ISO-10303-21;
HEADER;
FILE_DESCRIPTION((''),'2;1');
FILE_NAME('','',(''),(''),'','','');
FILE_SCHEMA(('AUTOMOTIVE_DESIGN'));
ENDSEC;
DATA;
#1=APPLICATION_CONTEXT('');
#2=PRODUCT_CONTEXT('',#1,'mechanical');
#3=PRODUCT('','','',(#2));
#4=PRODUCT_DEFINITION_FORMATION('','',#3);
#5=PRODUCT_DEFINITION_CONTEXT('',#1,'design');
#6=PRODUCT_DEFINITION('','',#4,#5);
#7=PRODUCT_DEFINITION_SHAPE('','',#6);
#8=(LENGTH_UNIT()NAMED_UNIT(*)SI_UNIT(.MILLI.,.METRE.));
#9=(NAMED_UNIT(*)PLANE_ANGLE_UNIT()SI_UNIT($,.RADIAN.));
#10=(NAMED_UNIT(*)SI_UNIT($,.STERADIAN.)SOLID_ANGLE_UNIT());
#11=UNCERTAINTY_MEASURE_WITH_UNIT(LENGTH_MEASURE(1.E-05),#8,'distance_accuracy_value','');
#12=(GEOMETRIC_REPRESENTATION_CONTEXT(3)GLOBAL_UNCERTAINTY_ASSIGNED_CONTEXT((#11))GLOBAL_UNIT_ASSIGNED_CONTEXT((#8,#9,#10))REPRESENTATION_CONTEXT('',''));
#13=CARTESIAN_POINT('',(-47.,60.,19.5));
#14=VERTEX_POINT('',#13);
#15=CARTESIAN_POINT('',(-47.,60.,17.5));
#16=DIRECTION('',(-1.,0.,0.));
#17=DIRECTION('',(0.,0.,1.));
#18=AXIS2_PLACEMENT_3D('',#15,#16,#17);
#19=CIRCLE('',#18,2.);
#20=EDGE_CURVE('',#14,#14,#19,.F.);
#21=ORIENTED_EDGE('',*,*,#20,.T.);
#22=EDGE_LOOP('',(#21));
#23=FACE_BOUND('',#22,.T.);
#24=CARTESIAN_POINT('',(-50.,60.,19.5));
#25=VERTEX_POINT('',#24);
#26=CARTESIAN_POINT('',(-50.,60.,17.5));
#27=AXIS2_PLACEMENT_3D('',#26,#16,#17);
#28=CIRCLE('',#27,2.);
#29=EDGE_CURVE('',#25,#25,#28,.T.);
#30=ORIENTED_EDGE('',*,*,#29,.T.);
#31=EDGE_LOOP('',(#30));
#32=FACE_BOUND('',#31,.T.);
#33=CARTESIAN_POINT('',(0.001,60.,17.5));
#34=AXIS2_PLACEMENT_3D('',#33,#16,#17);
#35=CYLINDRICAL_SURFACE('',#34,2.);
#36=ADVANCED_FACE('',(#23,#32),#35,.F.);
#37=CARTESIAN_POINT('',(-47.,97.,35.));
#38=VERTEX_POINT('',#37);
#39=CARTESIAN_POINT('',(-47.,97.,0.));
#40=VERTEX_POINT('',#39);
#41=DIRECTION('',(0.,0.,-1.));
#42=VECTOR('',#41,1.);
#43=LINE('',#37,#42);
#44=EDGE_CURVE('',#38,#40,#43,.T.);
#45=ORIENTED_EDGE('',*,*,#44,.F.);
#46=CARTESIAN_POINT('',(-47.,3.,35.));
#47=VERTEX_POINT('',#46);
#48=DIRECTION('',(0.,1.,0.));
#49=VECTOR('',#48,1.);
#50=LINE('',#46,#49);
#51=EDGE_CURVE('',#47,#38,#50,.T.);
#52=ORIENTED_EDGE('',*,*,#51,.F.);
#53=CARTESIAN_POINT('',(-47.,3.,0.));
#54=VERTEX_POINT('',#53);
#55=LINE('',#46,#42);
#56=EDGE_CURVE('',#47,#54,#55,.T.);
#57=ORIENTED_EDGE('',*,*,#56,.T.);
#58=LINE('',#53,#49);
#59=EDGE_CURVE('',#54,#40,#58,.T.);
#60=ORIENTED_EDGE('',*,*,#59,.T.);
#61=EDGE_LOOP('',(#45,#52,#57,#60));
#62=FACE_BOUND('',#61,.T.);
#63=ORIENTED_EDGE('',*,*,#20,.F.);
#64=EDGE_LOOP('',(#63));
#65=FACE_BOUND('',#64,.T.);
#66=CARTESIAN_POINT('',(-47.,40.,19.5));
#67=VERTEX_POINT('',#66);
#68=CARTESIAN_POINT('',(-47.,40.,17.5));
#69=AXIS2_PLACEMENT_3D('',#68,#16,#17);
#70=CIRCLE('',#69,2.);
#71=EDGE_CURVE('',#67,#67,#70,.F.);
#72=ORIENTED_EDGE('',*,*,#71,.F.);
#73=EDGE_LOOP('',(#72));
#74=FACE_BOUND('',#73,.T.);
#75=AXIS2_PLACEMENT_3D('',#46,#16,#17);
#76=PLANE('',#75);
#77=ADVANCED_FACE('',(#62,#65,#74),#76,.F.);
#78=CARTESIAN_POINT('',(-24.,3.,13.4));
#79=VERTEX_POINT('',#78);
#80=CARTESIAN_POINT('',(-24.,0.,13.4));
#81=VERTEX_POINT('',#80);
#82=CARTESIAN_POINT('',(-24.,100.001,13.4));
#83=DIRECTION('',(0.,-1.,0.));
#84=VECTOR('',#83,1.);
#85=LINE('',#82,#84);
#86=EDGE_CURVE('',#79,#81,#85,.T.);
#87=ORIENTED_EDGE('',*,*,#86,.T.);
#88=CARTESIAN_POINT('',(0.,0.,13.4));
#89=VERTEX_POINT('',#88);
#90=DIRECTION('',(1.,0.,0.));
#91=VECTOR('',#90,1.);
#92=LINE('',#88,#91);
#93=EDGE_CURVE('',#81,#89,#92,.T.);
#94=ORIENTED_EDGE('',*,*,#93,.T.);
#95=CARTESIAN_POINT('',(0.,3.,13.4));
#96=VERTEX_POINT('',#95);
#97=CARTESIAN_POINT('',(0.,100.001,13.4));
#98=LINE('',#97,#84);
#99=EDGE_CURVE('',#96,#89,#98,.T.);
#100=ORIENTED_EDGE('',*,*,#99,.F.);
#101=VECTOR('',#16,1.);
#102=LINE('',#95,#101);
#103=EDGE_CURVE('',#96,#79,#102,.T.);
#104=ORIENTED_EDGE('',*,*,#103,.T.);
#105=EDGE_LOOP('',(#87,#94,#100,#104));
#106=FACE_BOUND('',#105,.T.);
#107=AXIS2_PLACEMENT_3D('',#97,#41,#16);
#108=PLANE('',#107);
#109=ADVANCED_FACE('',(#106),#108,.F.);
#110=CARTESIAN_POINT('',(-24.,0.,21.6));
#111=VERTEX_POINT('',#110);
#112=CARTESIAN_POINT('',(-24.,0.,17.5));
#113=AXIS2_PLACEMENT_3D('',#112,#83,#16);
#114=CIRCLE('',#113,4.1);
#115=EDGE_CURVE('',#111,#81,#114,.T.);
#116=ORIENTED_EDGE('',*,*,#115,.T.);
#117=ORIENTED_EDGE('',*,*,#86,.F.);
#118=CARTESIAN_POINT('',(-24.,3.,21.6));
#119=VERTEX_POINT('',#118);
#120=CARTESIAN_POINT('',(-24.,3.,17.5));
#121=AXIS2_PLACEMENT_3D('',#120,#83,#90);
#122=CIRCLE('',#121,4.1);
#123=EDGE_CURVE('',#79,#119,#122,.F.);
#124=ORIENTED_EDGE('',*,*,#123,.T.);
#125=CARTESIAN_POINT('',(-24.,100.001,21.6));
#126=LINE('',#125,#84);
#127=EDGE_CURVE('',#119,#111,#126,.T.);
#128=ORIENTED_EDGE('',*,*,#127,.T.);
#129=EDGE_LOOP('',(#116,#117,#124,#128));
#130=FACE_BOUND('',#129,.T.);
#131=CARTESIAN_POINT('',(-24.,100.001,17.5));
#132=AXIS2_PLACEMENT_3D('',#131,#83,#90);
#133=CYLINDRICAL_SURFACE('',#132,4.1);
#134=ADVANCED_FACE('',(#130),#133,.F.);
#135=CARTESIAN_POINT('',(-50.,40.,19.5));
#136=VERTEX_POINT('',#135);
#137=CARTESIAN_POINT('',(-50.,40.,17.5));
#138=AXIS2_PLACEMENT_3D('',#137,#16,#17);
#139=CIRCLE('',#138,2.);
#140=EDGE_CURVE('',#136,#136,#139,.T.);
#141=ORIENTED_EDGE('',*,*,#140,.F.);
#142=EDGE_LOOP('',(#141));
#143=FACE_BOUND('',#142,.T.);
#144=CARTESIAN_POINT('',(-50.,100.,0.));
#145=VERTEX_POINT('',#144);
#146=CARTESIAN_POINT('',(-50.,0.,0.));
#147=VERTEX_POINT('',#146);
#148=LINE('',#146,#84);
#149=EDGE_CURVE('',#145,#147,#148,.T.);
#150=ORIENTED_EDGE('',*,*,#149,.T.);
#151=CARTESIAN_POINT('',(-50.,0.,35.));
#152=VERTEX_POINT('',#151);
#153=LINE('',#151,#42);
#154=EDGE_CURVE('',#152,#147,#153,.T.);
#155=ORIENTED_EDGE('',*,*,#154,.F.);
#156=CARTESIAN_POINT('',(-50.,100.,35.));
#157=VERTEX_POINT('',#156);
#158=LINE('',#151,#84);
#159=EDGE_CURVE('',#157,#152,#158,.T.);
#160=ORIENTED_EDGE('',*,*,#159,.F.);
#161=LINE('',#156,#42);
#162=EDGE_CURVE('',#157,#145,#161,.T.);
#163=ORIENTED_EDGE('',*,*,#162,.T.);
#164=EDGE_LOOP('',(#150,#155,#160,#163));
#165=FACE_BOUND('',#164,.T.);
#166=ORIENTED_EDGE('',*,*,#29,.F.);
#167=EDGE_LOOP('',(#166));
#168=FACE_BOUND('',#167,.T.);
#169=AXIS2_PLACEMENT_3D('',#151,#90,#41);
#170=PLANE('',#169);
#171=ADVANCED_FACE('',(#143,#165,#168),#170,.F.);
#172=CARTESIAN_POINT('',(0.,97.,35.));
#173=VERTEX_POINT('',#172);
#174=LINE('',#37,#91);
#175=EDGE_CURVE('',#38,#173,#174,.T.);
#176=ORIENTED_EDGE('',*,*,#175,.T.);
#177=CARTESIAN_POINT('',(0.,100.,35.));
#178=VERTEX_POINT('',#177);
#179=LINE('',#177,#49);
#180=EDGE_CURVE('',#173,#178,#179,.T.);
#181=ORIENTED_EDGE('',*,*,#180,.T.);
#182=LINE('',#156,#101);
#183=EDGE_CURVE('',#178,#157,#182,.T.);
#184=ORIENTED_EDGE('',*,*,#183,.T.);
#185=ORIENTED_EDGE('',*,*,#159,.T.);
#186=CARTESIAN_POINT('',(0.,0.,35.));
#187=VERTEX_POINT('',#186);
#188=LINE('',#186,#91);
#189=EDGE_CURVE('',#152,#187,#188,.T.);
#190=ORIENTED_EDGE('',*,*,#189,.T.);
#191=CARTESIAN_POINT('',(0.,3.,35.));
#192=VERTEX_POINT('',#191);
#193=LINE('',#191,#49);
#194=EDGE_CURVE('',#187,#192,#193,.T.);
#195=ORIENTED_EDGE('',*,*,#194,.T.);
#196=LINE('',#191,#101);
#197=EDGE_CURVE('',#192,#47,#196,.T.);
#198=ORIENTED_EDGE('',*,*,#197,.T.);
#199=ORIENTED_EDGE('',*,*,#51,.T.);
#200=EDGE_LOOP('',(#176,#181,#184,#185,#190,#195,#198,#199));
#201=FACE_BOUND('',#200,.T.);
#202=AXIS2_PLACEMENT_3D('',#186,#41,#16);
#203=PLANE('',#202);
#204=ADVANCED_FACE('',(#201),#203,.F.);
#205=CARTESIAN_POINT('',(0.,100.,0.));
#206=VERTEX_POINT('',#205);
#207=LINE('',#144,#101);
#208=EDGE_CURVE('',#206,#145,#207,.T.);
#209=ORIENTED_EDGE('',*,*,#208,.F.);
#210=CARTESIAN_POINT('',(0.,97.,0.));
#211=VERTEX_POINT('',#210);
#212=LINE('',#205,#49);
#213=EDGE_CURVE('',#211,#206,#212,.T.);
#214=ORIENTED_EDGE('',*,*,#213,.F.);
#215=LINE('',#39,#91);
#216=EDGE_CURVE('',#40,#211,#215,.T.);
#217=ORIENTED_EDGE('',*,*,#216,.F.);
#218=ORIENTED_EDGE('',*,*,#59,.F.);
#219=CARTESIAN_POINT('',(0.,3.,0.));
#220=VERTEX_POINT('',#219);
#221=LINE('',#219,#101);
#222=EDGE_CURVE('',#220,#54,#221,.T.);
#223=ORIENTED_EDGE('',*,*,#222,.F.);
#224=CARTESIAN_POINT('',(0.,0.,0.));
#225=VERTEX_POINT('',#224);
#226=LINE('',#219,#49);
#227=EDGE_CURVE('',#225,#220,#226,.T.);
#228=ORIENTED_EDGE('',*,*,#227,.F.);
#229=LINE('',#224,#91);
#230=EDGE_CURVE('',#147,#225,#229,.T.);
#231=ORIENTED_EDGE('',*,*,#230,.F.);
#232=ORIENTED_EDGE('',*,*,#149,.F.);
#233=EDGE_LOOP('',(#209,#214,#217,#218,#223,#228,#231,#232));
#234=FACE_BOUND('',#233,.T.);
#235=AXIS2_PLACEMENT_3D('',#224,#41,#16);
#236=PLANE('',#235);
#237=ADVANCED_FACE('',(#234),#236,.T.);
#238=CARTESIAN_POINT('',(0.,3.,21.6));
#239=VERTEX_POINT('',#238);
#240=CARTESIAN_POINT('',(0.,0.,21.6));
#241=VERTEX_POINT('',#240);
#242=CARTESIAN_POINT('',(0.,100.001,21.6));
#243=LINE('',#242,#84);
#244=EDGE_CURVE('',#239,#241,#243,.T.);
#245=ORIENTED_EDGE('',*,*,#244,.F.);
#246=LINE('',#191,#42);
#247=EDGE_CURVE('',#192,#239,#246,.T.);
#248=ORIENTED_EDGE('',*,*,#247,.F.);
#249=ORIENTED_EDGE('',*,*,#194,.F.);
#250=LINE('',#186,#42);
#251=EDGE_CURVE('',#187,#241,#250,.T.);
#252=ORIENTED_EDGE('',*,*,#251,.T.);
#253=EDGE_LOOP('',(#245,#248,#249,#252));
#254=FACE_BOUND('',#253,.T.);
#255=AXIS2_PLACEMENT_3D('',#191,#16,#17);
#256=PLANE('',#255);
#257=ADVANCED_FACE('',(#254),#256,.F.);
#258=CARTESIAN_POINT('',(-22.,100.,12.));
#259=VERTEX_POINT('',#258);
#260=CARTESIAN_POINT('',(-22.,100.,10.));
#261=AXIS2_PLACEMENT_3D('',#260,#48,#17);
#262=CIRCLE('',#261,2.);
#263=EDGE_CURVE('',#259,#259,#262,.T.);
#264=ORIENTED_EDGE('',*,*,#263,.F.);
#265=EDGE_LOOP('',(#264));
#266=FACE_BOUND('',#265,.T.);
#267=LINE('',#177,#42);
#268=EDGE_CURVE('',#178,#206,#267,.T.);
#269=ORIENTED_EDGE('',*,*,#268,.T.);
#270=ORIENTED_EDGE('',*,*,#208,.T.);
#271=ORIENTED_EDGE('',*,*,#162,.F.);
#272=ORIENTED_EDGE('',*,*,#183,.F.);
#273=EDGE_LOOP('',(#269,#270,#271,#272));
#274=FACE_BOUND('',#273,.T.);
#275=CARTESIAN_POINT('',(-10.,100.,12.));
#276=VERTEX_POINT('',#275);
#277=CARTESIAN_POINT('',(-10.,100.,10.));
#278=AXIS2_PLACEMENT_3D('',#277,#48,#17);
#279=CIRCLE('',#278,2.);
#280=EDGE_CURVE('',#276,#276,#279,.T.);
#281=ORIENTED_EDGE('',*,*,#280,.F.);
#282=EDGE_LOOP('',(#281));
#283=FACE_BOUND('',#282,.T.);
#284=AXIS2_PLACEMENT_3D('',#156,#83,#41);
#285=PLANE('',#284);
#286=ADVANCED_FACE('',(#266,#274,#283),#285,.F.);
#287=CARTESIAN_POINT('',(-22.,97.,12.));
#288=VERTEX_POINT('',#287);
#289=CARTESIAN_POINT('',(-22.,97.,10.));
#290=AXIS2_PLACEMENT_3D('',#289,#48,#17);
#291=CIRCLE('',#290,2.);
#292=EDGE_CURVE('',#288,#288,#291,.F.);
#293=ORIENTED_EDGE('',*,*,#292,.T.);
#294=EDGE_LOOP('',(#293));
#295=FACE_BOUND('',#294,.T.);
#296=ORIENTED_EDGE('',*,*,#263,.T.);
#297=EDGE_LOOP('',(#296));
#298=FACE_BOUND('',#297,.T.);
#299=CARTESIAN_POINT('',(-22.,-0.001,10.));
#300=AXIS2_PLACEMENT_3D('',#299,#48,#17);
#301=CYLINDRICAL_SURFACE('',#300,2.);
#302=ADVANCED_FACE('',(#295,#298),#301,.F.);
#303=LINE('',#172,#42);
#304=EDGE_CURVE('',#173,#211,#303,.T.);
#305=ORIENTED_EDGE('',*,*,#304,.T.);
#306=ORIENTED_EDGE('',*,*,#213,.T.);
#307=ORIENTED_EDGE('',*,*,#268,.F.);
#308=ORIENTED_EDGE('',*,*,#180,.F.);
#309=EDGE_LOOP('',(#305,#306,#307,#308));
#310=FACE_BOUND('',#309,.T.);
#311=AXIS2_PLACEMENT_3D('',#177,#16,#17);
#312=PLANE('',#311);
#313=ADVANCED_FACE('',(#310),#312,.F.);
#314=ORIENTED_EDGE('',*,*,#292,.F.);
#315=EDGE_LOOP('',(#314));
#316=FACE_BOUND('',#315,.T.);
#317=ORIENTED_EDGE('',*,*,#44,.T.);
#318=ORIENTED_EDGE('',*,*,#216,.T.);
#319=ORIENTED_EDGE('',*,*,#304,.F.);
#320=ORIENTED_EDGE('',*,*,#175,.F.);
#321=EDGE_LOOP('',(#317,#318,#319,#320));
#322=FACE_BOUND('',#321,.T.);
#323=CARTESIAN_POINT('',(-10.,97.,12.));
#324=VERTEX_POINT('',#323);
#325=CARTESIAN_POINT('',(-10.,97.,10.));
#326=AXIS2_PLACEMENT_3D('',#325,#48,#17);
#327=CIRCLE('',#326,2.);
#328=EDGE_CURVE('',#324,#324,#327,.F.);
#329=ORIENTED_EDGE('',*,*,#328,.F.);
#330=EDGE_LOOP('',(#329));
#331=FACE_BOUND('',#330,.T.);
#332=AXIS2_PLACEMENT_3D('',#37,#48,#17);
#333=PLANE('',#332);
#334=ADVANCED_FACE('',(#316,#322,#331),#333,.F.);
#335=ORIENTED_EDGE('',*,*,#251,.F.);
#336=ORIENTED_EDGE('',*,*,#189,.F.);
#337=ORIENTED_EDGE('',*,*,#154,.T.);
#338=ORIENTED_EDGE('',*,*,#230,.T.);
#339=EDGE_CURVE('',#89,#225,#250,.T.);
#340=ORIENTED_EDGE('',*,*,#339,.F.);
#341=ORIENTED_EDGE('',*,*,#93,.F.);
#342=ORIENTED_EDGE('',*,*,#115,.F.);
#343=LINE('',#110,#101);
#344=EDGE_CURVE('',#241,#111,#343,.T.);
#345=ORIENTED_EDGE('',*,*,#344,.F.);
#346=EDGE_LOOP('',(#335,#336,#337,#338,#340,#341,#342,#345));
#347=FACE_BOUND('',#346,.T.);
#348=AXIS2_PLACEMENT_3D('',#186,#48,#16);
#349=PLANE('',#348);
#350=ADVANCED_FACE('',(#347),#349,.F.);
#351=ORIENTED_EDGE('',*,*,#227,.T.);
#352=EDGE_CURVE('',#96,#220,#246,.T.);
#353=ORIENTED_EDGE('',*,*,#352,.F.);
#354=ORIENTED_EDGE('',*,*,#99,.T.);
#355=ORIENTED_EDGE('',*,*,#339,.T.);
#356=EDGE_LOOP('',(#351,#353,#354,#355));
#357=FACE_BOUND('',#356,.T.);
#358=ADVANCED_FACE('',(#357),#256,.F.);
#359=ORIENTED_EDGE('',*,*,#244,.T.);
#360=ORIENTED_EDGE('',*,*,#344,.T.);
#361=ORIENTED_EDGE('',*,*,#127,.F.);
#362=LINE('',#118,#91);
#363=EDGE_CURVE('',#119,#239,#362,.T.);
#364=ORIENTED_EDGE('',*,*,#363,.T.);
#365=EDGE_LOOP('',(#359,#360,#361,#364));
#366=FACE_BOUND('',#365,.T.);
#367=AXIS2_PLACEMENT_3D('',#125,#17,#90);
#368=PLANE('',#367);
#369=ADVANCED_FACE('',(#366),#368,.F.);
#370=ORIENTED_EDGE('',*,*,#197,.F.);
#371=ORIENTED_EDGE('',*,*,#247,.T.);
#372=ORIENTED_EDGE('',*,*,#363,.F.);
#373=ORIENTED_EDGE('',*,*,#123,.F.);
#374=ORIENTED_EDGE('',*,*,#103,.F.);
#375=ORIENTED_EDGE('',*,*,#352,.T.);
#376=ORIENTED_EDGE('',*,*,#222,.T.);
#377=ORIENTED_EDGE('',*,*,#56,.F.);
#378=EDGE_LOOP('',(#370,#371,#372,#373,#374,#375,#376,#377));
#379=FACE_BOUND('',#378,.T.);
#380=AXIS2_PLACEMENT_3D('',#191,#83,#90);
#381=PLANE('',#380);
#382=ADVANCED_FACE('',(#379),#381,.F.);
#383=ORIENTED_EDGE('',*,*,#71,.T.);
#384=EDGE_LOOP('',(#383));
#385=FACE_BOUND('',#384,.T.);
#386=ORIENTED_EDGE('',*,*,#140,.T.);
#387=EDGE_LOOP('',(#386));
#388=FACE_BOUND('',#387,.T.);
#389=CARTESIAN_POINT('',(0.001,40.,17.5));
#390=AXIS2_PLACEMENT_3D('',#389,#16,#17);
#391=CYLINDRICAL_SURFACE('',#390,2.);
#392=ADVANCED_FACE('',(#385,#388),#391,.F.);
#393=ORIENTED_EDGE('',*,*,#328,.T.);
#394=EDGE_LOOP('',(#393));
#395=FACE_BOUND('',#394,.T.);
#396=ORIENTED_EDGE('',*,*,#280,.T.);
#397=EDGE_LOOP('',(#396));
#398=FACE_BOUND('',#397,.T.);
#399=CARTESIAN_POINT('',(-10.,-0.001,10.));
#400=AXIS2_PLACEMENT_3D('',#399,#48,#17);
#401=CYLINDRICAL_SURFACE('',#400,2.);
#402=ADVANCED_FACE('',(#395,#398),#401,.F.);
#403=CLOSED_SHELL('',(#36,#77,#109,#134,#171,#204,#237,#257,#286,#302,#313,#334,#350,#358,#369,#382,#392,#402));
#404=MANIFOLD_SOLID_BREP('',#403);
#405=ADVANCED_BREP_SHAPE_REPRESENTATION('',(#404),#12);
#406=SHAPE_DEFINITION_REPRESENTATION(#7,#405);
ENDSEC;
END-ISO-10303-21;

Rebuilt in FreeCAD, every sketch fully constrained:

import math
import FreeCAD as App
import Part
import Sketcher


def add_polygon(sketch, points):
    """Adds a closed chain of lines whose ends are joined by coincident constraints."""
    first, n = sketch.GeometryCount, len(points)
    for a, b in zip(points, points[1:] + points[:1]):
        sketch.addGeometry(Part.LineSegment(App.Vector(*a, 0), App.Vector(*b, 0)), False)
    for i in range(n):
        sketch.addConstraint(Sketcher.Constraint("Coincident", first + i, 2, first + (i + 1) % n, 1))

doc = App.newDocument("Part")
body = doc.addObject("PartDesign::Body", "Body")

sketch1 = body.newObject("Sketcher::SketchObject", "Sketch")
sketch1.AttachmentSupport = (doc.getObject("XY_Plane"), [""])
sketch1.MapMode = "FlatFace"
add_polygon(sketch1, [(-50, 0), (0, 0), (0, 3), (-47, 3), (-47, 97), (0, 97), (0, 100), (-50, 100)])
sketch1.addConstraint([
    Sketcher.Constraint("Horizontal", 0),
    Sketcher.Constraint("Vertical", 1),
    Sketcher.Constraint("Horizontal", 2),
    Sketcher.Constraint("Vertical", 3),
    Sketcher.Constraint("Horizontal", 4),
    Sketcher.Constraint("Vertical", 5),
    Sketcher.Constraint("Horizontal", 6),
    Sketcher.Constraint("Vertical", 7),
    Sketcher.Constraint("Coincident", 0, 2, -1, 1),
    Sketcher.Constraint("PointOnObject", 4, 2, -2),
    Sketcher.Constraint("Equal", 1, 5),
    Sketcher.Constraint("DistanceX", 0, 1, 0, 2, 50.0),
    Sketcher.Constraint("DistanceX", 2, 2, 2, 1, 47.0),
    Sketcher.Constraint("DistanceY", 1, 1, 1, 2, 3.0),
    Sketcher.Constraint("DistanceY", 3, 1, 3, 2, 94.0),
])
pad1 = body.newObject("PartDesign::Pad", "Pad")
pad1.Profile = sketch1
pad1.Length = 35

sketch2 = body.newObject("Sketcher::SketchObject", "Sketch001")
sketch2.AttachmentSupport = (doc.getObject("XZ_Plane"), [""])
sketch2.MapMode = "FlatFace"
sketch2.addGeometry([
    Part.LineSegment(App.Vector(-24, 13.4, 0), App.Vector(0, 13.4, 0)),
    Part.LineSegment(App.Vector(0, 13.4, 0), App.Vector(0, 21.6, 0)),
    Part.LineSegment(App.Vector(0, 21.6, 0), App.Vector(-24, 21.6, 0)),
    Part.ArcOfCircle(Part.Circle(App.Vector(-24, 17.5, 0), App.Vector(0, 0, 1), 4.1), math.radians(90), math.radians(270)),
], False)
sketch2.addConstraint([
    Sketcher.Constraint("Coincident", 0, 2, 1, 1),
    Sketcher.Constraint("Coincident", 1, 2, 2, 1),
    Sketcher.Constraint("Tangent", 2, 2, 3, 1),
    Sketcher.Constraint("Tangent", 3, 2, 0, 1),
    Sketcher.Constraint("Horizontal", 0),
    Sketcher.Constraint("Vertical", 1),
    Sketcher.Constraint("Horizontal", 2),
    Sketcher.Constraint("PointOnObject", 0, 2, -2),
    Sketcher.Constraint("Radius", 3, 4.1),
    Sketcher.Constraint("DistanceX", 0, 1, 0, 2, 24.0),
    Sketcher.Constraint("DistanceY", -1, 1, 3, 3, 17.5),
])
pocket1 = body.newObject("PartDesign::Pocket", "Pocket")
pocket1.Profile = sketch2
pocket1.Type = "UpToFirst"

sketch3 = body.newObject("Sketcher::SketchObject", "Sketch002")
sketch3.AttachmentSupport = (doc.getObject("XZ_Plane"), [""])
sketch3.MapMode = "FlatFace"
sketch3.AttachmentOffset = App.Placement(App.Vector(0, 0, -100), App.Rotation())
sketch3.addGeometry(Part.Circle(App.Vector(-22, 10, 0), App.Vector(0, 0, 1), 2), False)
sketch3.addConstraint([
    Sketcher.Constraint("Diameter", 0, 4.0),
    Sketcher.Constraint("DistanceX", 0, 3, -1, 1, 22.0),
    Sketcher.Constraint("DistanceY", -1, 1, 0, 3, 10.0),
])
pocket2 = body.newObject("PartDesign::Pocket", "Pocket001")
pocket2.Profile = sketch3
pocket2.Type = "UpToFirst"
pocket2.Reversed = True

sketch4 = body.newObject("Sketcher::SketchObject", "Sketch003")
sketch4.AttachmentSupport = (doc.getObject("XZ_Plane"), [""])
sketch4.MapMode = "FlatFace"
sketch4.AttachmentOffset = App.Placement(App.Vector(0, 0, -100), App.Rotation())
sketch4.addGeometry(Part.Circle(App.Vector(-10, 10, 0), App.Vector(0, 0, 1), 2), False)
sketch4.addConstraint([
    Sketcher.Constraint("Diameter", 0, 4.0),
    Sketcher.Constraint("DistanceX", 0, 3, -1, 1, 10.0),
    Sketcher.Constraint("DistanceY", -1, 1, 0, 3, 10.0),
])
pocket3 = body.newObject("PartDesign::Pocket", "Pocket002")
pocket3.Profile = sketch4
pocket3.Type = "UpToFirst"
pocket3.Reversed = True

sketch5 = body.newObject("Sketcher::SketchObject", "Sketch004")
sketch5.AttachmentSupport = (doc.getObject("YZ_Plane"), [""])
sketch5.MapMode = "FlatFace"
sketch5.AttachmentOffset = App.Placement(App.Vector(0, 0, -50), App.Rotation())
sketch5.addGeometry(Part.Circle(App.Vector(60, 17.5, 0), App.Vector(0, 0, 1), 2), False)
sketch5.addConstraint([
    Sketcher.Constraint("Diameter", 0, 4.0),
    Sketcher.Constraint("DistanceX", -1, 1, 0, 3, 60.0),
    Sketcher.Constraint("DistanceY", -1, 1, 0, 3, 17.5),
])
pocket4 = body.newObject("PartDesign::Pocket", "Pocket003")
pocket4.Profile = sketch5
pocket4.Type = "UpToFirst"
pocket4.Reversed = True

sketch6 = body.newObject("Sketcher::SketchObject", "Sketch005")
sketch6.AttachmentSupport = (doc.getObject("YZ_Plane"), [""])
sketch6.MapMode = "FlatFace"
sketch6.AttachmentOffset = App.Placement(App.Vector(0, 0, -50), App.Rotation())
sketch6.addGeometry(Part.Circle(App.Vector(40, 17.5, 0), App.Vector(0, 0, 1), 2), False)
sketch6.addConstraint([
    Sketcher.Constraint("Diameter", 0, 4.0),
    Sketcher.Constraint("DistanceX", -1, 1, 0, 3, 40.0),
    Sketcher.Constraint("DistanceY", -1, 1, 0, 3, 17.5),
])
pocket5 = body.newObject("PartDesign::Pocket", "Pocket004")
pocket5.Profile = sketch6
pocket5.Type = "UpToFirst"
pocket5.Reversed = True

doc.recompute()
